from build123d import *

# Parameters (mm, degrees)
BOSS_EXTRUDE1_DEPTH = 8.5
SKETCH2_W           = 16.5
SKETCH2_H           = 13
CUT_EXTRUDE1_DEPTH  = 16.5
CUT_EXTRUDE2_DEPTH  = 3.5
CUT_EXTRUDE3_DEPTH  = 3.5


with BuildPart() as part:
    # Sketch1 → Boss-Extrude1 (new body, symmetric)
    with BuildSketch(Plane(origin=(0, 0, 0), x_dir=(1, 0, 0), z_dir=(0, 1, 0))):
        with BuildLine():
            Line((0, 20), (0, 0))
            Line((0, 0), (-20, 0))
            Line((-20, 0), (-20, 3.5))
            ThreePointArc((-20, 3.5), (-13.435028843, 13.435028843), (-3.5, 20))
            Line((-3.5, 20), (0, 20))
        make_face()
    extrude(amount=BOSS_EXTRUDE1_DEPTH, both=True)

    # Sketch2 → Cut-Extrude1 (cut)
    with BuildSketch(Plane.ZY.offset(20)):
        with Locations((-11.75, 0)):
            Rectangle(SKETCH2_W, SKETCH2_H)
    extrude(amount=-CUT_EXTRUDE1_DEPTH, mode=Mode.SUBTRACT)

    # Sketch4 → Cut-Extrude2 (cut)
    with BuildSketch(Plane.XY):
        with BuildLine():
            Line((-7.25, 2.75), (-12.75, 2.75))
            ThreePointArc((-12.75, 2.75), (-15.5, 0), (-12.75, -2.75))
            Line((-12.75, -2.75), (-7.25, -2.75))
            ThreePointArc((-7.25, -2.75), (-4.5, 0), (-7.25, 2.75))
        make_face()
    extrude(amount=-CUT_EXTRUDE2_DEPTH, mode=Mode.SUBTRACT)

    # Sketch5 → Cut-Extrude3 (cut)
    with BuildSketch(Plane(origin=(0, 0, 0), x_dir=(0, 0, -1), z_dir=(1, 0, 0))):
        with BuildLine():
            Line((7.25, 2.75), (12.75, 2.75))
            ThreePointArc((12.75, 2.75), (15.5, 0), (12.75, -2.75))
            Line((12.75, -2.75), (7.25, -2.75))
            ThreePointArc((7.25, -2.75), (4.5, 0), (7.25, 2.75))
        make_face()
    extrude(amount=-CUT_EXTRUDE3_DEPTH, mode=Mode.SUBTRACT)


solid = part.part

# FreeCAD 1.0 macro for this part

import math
import FreeCAD as App
import Part
import Sketcher
from FreeCAD import Vector


def add_polygon(sketch, points):
    """Adds a closed chain of lines whose ends are joined by coincident constraints."""
    first, n = sketch.GeometryCount, len(points)
    for a, b in zip(points, points[1:] + points[:1]):
        sketch.addGeometry(Part.LineSegment(App.Vector(*a, 0), App.Vector(*b, 0)), False)
    for i in range(n):
        sketch.addConstraint(Sketcher.Constraint("Coincident", first + i, 2, first + (i + 1) % n, 1))

doc = App.newDocument("Part")
params = doc.addObject("Spreadsheet::Sheet", "Params")
for row, (alias, value) in enumerate([
    ("sketch1_width", "20 mm"),
    ("sketch1_width2", "3.5 mm"),
    ("pad1_length", "17 mm"),
    ("sketch2_width", "13 mm"),
    ("sketch2_height", "16.5 mm"),
    ("pocket1_length", "16.5 mm"),
    ("sketch3_radius", "2.75 mm"),
    ("sketch3_width", "5.5 mm"),
    ("pocket2_length", "3.5 mm"),
    ("sketch4_radius", "2.75 mm"),
    ("sketch4_height", "5.5 mm"),
    ("pocket3_length", "3.5 mm"),
], start=1):
    params.set(f"A{row}", alias)
    params.set(f"B{row}", "=" + value)
    params.setAlias(f"B{row}", alias)

body = doc.addObject("PartDesign::Body", "Body")

# Sketch on XZ plane
sketch1 = body.newObject("Sketcher::SketchObject", "Sketch")
sketch1.AttachmentSupport = (doc.getObject("XZ_Plane"), [""])
sketch1.MapMode = "FlatFace"
sketch1.addGeometry([
    Part.LineSegment(Vector(0, 0, 0), Vector(0, -20, 0)),  # 0
    Part.LineSegment(Vector(0, -20, 0), Vector(-3.5, -20, 0)),  # 1
    Part.ArcOfCircle(Part.Circle(Vector(7.603727, 7.603727, 0), Vector(0, 0, 1), 29.753294), math.radians(-158.087314), math.radians(-111.912686)),  # 2
    Part.LineSegment(Vector(-20, -3.5, 0), Vector(-20, 0, 0)),  # 3
    Part.LineSegment(Vector(-20, 0, 0), Vector(0, 0, 0)),  # 4
], False)
sketch1.addConstraint([
    Sketcher.Constraint("Coincident", 0, 2, 1, 1),
    Sketcher.Constraint("Coincident", 1, 2, 2, 2),
    Sketcher.Constraint("Coincident", 2, 1, 3, 1),
    Sketcher.Constraint("Coincident", 3, 2, 4, 1),
    Sketcher.Constraint("Coincident", 4, 2, 0, 1),
    Sketcher.Constraint("Vertical", 0),
    Sketcher.Constraint("Horizontal", 1),
    Sketcher.Constraint("Vertical", 3),
    Sketcher.Constraint("Horizontal", 4),
    Sketcher.Constraint("Coincident", 4, 2, -1, 1),
    Sketcher.Constraint("Equal", 4, 0),
    Sketcher.Constraint("Equal", 1, 3),
    Sketcher.Constraint("DistanceX", 4, 1, 4, 2, 20.0),
    Sketcher.Constraint("DistanceX", 1, 2, 1, 1, 3.5),
    Sketcher.Constraint("Radius", 2, 29.753294),
])
sketch1.setExpression("Constraints[12]", "Params.sketch1_width")
sketch1.setExpression("Constraints[13]", "Params.sketch1_width2")
pad1 = body.newObject("PartDesign::Pad", "Pad")
pad1.Profile = sketch1
pad1.setExpression("Length", "Params.pad1_length")
pad1.Midplane = True

# Sketch on YZ plane
sketch2 = body.newObject("Sketcher::SketchObject", "Sketch001")
sketch2.AttachmentSupport = (doc.getObject("YZ_Plane"), [""])
sketch2.MapMode = "FlatFace"
sketch2.AttachmentOffset = App.Placement(Vector(0, 0, -20), App.Rotation())
add_polygon(sketch2, [(6.5, -20), (-6.5, -20), (-6.5, -3.5), (6.5, -3.5)])  # lines 0-3
sketch2.addConstraint([
    Sketcher.Constraint("Horizontal", 0),
    Sketcher.Constraint("Vertical", 1),
    Sketcher.Constraint("Horizontal", 2),
    Sketcher.Constraint("Vertical", 3),
    Sketcher.Constraint("DistanceX", 0, 2, 0, 1, 13.0),
    Sketcher.Constraint("DistanceY", 1, 1, 1, 2, 16.5),
    Sketcher.Constraint("DistanceY", 0, 2, -1, 1, 20.0),
    Sketcher.Constraint("DistanceX", 0, 2, -1, 1, 6.5),
])
sketch2.setExpression("Constraints[8]", "Params.sketch2_width")
sketch2.setExpression("Constraints[9]", "Params.sketch2_height")
pocket1 = body.newObject("PartDesign::Pocket", "Pocket")
pocket1.Profile = sketch2
pocket1.setExpression("Length", "Params.pocket1_length")
pocket1.Reversed = True

# Sketch on XY plane
sketch3 = body.newObject("Sketcher::SketchObject", "Sketch002")
sketch3.AttachmentSupport = (doc.getObject("XY_Plane"), [""])
sketch3.MapMode = "FlatFace"
sketch3.addGeometry([
    Part.LineSegment(Vector(-7.25, 2.75, 0), Vector(-12.75, 2.75, 0)),
    Part.ArcOfCircle(Part.Circle(Vector(-12.75, 0, 0), Vector(0, 0, 1), 2.75), math.radians(90), math.radians(270)),
    Part.LineSegment(Vector(-12.75, -2.75, 0), Vector(-7.25, -2.75, 0)),
    Part.ArcOfCircle(Part.Circle(Vector(-7.25, 0, 0), Vector(0, 0, 1), 2.75), math.radians(-90), math.radians(90)),
], False)
sketch3.addConstraint([
    Sketcher.Constraint("Tangent", 0, 2, 1, 1),
    Sketcher.Constraint("Tangent", 1, 2, 2, 1),
    Sketcher.Constraint("Tangent", 2, 2, 3, 1),
    Sketcher.Constraint("Tangent", 3, 2, 0, 1),
    Sketcher.Constraint("Horizontal", 0),
    Sketcher.Constraint("Horizontal", 2),
    Sketcher.Constraint("PointOnObject", 1, 3, -1),
    Sketcher.Constraint("Radius", 1, 2.75),
    Sketcher.Constraint("DistanceX", 0, 2, 0, 1, 5.5),
    Sketcher.Constraint("DistanceX", 1, 3, -1, 1, 12.75),
])
sketch3.setExpression("Constraints[7]", "Params.sketch3_radius")
sketch3.setExpression("Constraints[8]", "Params.sketch3_width")
pocket2 = body.newObject("PartDesign::Pocket", "Pocket001")
pocket2.Profile = sketch3
pocket2.setExpression("Length", "Params.pocket2_length")

# Sketch on YZ plane
sketch4 = body.newObject("Sketcher::SketchObject", "Sketch003")
sketch4.AttachmentSupport = (doc.getObject("YZ_Plane"), [""])
sketch4.MapMode = "FlatFace"
sketch4.addGeometry([
    Part.LineSegment(Vector(2.75, -12.75, 0), Vector(2.75, -7.25, 0)),
    Part.ArcOfCircle(Part.Circle(Vector(0, -7.25, 0), Vector(0, 0, 1), 2.75), math.radians(0), math.radians(180)),
    Part.LineSegment(Vector(-2.75, -7.25, 0), Vector(-2.75, -12.75, 0)),
    Part.ArcOfCircle(Part.Circle(Vector(0, -12.75, 0), Vector(0, 0, 1), 2.75), math.radians(180), math.radians(360)),
], False)
sketch4.addConstraint([
    Sketcher.Constraint("Tangent", 0, 2, 1, 1),
    Sketcher.Constraint("Tangent", 1, 2, 2, 1),
    Sketcher.Constraint("Tangent", 2, 2, 3, 1),
    Sketcher.Constraint("Tangent", 3, 2, 0, 1),
    Sketcher.Constraint("Vertical", 0),
    Sketcher.Constraint("Vertical", 2),
    Sketcher.Constraint("PointOnObject", 1, 3, -2),
    Sketcher.Constraint("Radius", 1, 2.75),
    Sketcher.Constraint("DistanceY", 0, 1, 0, 2, 5.5),
    Sketcher.Constraint("DistanceY", 1, 3, -1, 1, 7.25),
])
sketch4.setExpression("Constraints[7]", "Params.sketch4_radius")
sketch4.setExpression("Constraints[8]", "Params.sketch4_height")
pocket3 = body.newObject("PartDesign::Pocket", "Pocket002")
pocket3.Profile = sketch4
pocket3.setExpression("Length", "Params.pocket3_length")

doc.recompute()
